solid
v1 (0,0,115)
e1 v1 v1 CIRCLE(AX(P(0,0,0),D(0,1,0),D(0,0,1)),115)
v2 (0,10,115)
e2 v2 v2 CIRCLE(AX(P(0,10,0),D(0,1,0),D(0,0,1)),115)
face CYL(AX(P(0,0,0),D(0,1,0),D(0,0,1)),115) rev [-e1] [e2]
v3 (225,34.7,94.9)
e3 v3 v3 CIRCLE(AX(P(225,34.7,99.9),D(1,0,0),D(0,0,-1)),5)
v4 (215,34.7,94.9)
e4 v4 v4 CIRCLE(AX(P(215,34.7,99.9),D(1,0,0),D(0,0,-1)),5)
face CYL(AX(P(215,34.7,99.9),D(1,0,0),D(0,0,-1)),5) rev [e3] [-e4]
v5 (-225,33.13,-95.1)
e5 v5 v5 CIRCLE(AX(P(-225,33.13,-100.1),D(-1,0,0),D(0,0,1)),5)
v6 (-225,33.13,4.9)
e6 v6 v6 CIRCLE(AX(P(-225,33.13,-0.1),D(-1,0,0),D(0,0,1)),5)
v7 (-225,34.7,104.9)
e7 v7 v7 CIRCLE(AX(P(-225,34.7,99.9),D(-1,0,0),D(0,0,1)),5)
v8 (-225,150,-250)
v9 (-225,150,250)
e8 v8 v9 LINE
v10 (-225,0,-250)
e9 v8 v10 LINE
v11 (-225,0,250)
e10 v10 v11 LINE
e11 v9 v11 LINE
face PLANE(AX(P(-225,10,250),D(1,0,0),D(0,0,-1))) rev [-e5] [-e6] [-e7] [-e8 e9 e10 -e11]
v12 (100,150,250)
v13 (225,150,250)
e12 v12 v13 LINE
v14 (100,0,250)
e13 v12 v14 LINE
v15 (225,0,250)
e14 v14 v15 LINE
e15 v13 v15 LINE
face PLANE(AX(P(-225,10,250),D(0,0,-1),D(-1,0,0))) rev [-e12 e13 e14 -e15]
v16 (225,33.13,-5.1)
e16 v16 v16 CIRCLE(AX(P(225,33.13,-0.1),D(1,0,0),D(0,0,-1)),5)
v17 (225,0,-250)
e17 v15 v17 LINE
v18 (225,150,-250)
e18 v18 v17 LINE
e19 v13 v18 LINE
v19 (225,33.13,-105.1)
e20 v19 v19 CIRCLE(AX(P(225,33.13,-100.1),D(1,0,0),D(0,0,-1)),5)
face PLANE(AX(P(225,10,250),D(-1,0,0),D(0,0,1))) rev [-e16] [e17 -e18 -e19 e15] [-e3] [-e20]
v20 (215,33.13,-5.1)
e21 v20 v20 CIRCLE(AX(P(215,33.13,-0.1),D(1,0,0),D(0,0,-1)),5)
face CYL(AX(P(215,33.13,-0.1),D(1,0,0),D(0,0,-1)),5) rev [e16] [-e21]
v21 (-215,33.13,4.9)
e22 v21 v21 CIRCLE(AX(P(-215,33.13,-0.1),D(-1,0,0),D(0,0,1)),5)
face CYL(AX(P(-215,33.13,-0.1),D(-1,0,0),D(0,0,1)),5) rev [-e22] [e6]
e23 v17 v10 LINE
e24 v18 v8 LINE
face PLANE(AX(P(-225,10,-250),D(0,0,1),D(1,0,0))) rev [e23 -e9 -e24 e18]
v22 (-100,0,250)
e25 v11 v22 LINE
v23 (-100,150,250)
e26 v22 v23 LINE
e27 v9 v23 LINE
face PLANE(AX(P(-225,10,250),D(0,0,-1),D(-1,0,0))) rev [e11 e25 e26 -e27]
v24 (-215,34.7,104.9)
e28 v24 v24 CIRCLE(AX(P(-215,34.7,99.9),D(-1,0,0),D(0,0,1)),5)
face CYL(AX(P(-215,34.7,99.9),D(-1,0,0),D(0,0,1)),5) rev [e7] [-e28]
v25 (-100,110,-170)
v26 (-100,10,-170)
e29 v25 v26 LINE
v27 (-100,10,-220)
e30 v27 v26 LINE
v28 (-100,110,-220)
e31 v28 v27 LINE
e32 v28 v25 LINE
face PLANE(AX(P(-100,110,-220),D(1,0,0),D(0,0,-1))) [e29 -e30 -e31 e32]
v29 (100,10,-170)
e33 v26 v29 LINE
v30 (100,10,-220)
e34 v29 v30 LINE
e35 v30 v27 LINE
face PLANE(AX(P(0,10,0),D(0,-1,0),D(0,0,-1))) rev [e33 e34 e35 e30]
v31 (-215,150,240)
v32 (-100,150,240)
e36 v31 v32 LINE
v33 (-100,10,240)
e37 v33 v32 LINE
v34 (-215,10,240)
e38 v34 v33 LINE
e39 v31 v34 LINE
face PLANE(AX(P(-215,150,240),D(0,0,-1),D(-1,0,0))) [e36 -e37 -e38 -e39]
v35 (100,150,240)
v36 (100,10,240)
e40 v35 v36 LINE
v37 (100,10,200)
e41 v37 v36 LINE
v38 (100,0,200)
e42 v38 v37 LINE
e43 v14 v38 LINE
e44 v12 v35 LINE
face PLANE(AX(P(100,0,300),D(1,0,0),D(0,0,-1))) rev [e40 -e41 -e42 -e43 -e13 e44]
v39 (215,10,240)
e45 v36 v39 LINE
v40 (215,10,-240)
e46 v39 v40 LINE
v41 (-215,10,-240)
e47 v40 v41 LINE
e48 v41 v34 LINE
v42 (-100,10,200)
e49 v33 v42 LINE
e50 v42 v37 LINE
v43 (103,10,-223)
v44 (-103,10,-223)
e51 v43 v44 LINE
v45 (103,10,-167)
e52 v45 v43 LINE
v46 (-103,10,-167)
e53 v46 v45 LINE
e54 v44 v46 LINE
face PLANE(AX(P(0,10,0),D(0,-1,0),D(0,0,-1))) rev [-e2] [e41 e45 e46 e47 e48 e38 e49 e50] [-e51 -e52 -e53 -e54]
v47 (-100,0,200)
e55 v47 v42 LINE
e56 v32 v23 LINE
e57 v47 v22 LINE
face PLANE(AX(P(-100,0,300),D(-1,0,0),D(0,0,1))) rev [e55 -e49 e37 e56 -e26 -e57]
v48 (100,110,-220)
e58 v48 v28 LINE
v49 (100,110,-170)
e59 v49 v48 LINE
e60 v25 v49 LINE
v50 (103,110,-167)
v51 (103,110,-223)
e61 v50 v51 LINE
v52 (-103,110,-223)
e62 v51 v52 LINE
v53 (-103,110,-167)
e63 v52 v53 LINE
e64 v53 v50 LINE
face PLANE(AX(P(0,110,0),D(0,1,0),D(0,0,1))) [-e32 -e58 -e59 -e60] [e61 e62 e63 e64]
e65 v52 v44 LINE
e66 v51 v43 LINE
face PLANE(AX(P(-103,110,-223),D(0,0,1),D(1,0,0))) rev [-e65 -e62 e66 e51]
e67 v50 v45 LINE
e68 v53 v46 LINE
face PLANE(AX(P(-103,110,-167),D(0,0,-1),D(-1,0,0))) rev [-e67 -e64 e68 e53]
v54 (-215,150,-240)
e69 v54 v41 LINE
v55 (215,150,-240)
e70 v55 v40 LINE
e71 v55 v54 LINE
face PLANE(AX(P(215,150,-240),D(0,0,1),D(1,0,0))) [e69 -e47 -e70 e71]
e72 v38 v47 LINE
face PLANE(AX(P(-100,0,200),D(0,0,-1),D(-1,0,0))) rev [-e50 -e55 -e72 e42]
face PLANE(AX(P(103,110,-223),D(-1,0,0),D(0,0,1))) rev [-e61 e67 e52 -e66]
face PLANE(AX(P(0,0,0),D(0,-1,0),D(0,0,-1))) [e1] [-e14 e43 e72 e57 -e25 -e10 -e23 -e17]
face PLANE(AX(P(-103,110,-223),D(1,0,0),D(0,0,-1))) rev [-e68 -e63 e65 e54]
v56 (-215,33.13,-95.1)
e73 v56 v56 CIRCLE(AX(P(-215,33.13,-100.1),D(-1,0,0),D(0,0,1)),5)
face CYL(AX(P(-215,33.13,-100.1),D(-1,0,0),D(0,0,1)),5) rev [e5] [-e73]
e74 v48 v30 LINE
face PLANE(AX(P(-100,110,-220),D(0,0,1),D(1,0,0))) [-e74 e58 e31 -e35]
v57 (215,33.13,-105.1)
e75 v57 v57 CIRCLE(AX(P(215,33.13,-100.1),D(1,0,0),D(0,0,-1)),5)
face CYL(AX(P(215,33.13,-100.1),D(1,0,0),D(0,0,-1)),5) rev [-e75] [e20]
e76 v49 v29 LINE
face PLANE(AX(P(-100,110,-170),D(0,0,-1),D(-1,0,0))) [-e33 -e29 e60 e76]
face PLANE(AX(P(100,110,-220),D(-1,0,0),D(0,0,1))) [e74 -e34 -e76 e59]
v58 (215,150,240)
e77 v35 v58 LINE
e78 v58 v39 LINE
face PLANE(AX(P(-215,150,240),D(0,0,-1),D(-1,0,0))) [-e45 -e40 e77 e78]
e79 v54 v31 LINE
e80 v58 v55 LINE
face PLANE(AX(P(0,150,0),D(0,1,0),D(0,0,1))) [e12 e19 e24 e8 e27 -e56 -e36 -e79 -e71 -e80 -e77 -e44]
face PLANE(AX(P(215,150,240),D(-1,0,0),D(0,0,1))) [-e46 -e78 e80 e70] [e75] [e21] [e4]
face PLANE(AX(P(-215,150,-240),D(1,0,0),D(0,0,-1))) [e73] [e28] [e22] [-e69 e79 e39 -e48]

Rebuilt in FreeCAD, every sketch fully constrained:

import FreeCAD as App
import Part
import Sketcher
Q = App.Units.Quantity

doc = App.newDocument("Part")
body = doc.addObject("PartDesign::Body", "Body")

# Sketch on XZ plane
sketch1 = doc.addObject("Sketcher::SketchObject", "Sketch")
body.addObject(sketch1)
sketch1.AttachmentSupport = (doc.XZ_Plane, [""])
sketch1.MapMode = "FlatFace"
sketch1.addGeometry([
    Part.LineSegment(App.Vector(-225, -250, 0), App.Vector(-225, 250, 0)),
    Part.LineSegment(App.Vector(-225, 250, 0), App.Vector(225, 250, 0)),
    Part.LineSegment(App.Vector(225, 250, 0), App.Vector(225, -250, 0)),
    Part.LineSegment(App.Vector(225, -250, 0), App.Vector(-225, -250, 0)),
], False)
sketch1.addConstraint([
    Sketcher.Constraint("Coincident", 0, 2, 1, 1),
    Sketcher.Constraint("Coincident", 1, 2, 2, 1),
    Sketcher.Constraint("Coincident", 2, 2, 3, 1),
    Sketcher.Constraint("Coincident", 3, 2, 0, 1),
    Sketcher.Constraint("Vertical", 0),
    Sketcher.Constraint("Horizontal", 1),
    Sketcher.Constraint("Vertical", 2),
    Sketcher.Constraint("Horizontal", 3),
    Sketcher.Constraint("Symmetric", 0, 2, 2, 2, -1, 1),
    Sketcher.Constraint("DistanceX", 1, 1, 1, 2, Q("450 mm")),
    Sketcher.Constraint("DistanceY", 0, 1, 0, 2, Q("500 mm")),
])
pad1 = doc.addObject("PartDesign::Pad", "Pad")
body.addObject(pad1)
pad1.Profile = sketch1
pad1.Length = 10
pad1.Reversed = True

# Sketch on XZ plane
sketch2 = doc.addObject("Sketcher::SketchObject", "Sketch001")
body.addObject(sketch2)
sketch2.AttachmentSupport = (doc.XZ_Plane, [""])
sketch2.MapMode = "FlatFace"
sketch2.AttachmentOffset = App.Placement(App.Vector(0, 0, -10), App.Rotation())
sketch2.addGeometry([
    Part.LineSegment(App.Vector(-225, -250, 0), App.Vector(-225, 250, 0)),  # 0
    Part.LineSegment(App.Vector(-225, 250, 0), App.Vector(225, 250, 0)),  # 1
    Part.LineSegment(App.Vector(225, 250, 0), App.Vector(225, -250, 0)),  # 2
    Part.LineSegment(App.Vector(225, -250, 0), App.Vector(-225, -250, 0)),  # 3
    Part.LineSegment(App.Vector(215, 240, 0), App.Vector(-215, 240, 0)),  # 4
    Part.LineSegment(App.Vector(-215, 240, 0), App.Vector(-215, -240, 0)),  # 5
    Part.LineSegment(App.Vector(-215, -240, 0), App.Vector(215, -240, 0)),  # 6
    Part.LineSegment(App.Vector(215, -240, 0), App.Vector(215, 240, 0)),  # 7
], False)
sketch2.addConstraint([
    Sketcher.Constraint("Coincident", 0, 2, 1, 1),
    Sketcher.Constraint("Coincident", 1, 2, 2, 1),
    Sketcher.Constraint("Coincident", 2, 2, 3, 1),
    Sketcher.Constraint("Coincident", 3, 2, 0, 1),
    Sketcher.Constraint("Coincident", 4, 2, 5, 1),
    Sketcher.Constraint("Coincident", 5, 2, 6, 1),
    Sketcher.Constraint("Coincident", 6, 2, 7, 1),
    Sketcher.Constraint("Coincident", 7, 2, 4, 1),
    Sketcher.Constraint("Vertical", 0),
    Sketcher.Constraint("Horizontal", 1),
    Sketcher.Constraint("Vertical", 2),
    Sketcher.Constraint("Horizontal", 3),
    Sketcher.Constraint("Horizontal", 4),
    Sketcher.Constraint("Vertical", 5),
    Sketcher.Constraint("Horizontal", 6),
    Sketcher.Constraint("Vertical", 7),
    Sketcher.Constraint("Symmetric", 0, 2, 2, 2, -1, 1),
    Sketcher.Constraint("Symmetric", 4, 2, 6, 2, -1, 1),
    Sketcher.Constraint("DistanceX", 1, 1, 1, 2, Q("450 mm")),
    Sketcher.Constraint("DistanceX", 4, 2, 4, 1, Q("430 mm")),
    Sketcher.Constraint("DistanceY", 0, 1, 0, 2, Q("500 mm")),
    Sketcher.Constraint("DistanceY", 5, 2, 5, 1, Q("480 mm")),
])
pad2 = doc.addObject("PartDesign::Pad", "Pad001")
body.addObject(pad2)
pad2.Profile = sketch2
pad2.Length = 140
pad2.Reversed = True

# Sketch on XZ plane
sketch3 = doc.addObject("Sketcher::SketchObject", "Sketch002")
body.addObject(sketch3)
sketch3.AttachmentSupport = (doc.XZ_Plane, [""])
sketch3.MapMode = "FlatFace"
sketch3.AttachmentOffset = App.Placement(App.Vector(0, 0, -10), App.Rotation())
sketch3.addGeometry(Part.Circle(App.Vector(0, 0, 0), App.Vector(0, 0, 1), 115), False)
sketch3.addConstraint([
    Sketcher.Constraint("Coincident", 0, 3, -1, 1),
    Sketcher.Constraint("Diameter", 0, Q("230 mm")),
])
pocket1 = doc.addObject("PartDesign::Pocket", "Pocket")
body.addObject(pocket1)
pocket1.Profile = sketch3
pocket1.Length = 10
pocket1.Reversed = True

# Sketch on XZ plane
sketch4 = doc.addObject("Sketcher::SketchObject", "Sketch003")
body.addObject(sketch4)
sketch4.AttachmentSupport = (doc.XZ_Plane, [""])
sketch4.MapMode = "FlatFace"
sketch4.AttachmentOffset = App.Placement(App.Vector(0, 0, -150), App.Rotation())
sketch4.addGeometry([
    Part.LineSegment(App.Vector(-100, 200, 0), App.Vector(-100, 300, 0)),
    Part.LineSegment(App.Vector(-100, 300, 0), App.Vector(100, 300, 0)),
    Part.LineSegment(App.Vector(100, 300, 0), App.Vector(100, 200, 0)),
    Part.LineSegment(App.Vector(100, 200, 0), App.Vector(-100, 200, 0)),
], False)
sketch4.addConstraint([
    Sketcher.Constraint("Coincident", 0, 2, 1, 1),
    Sketcher.Constraint("Coincident", 1, 2, 2, 1),
    Sketcher.Constraint("Coincident", 2, 2, 3, 1),
    Sketcher.Constraint("Coincident", 3, 2, 0, 1),
    Sketcher.Constraint("Vertical", 0),
    Sketcher.Constraint("Horizontal", 1),
    Sketcher.Constraint("Vertical", 2),
    Sketcher.Constraint("Horizontal", 3),
    Sketcher.Constraint("DistanceX", 1, 1, 1, 2, Q("200 mm")),
    Sketcher.Constraint("DistanceY", 0, 1, 0, 2, Q("100 mm")),
    Sketcher.Constraint("DistanceX", 0, 2, -1, 1, Q("100 mm")),
    Sketcher.Constraint("DistanceY", -1, 1, 0, 2, Q("300 mm")),
])
pocket2 = doc.addObject("PartDesign::Pocket", "Pocket001")
body.addObject(pocket2)
pocket2.Profile = sketch4
pocket2.Type = "ThroughAll"
pocket2.Reversed = True

# Sketch on YZ plane
sketch5 = doc.addObject("Sketcher::SketchObject", "Sketch004")
body.addObject(sketch5)
sketch5.AttachmentSupport = (doc.YZ_Plane, [""])
sketch5.MapMode = "FlatFace"
sketch5.AttachmentOffset = App.Placement(App.Vector(0, 0, 225), App.Rotation())
sketch5.addGeometry([
    Part.Circle(App.Vector(34.7, 99.9, 0), App.Vector(0, 0, 1), 5),
    Part.Circle(App.Vector(33.13, -0.1, 0), App.Vector(0, 0, 1), 5),
    Part.Circle(App.Vector(33.13, -100.1, 0), App.Vector(0, 0, 1), 5),
], False)
sketch5.addConstraint([
    Sketcher.Constraint("Equal", 0, 1),
    Sketcher.Constraint("Equal", 1, 2),
    Sketcher.Constraint("Vertical", 1, 3, 2, 3),
    Sketcher.Constraint("Diameter", 0, Q("10 mm")),
    Sketcher.Constraint("DistanceY", 1, 3, 0, 3, Q("100 mm")),
    Sketcher.Constraint("DistanceY", 2, 3, 1, 3, Q("100 mm")),
    Sketcher.Constraint("DistanceX", -1, 1, 0, 3, Q("34.7 mm")),
    Sketcher.Constraint("DistanceY", -1, 1, 0, 3, Q("99.9 mm")),
    Sketcher.Constraint("DistanceX", -1, 1, 1, 3, Q("33.13 mm")),
])
pocket3 = doc.addObject("PartDesign::Pocket", "Pocket002")
body.addObject(pocket3)
pocket3.Profile = sketch5
pocket3.Length = 10

# Sketch on YZ plane
sketch6 = doc.addObject("Sketcher::SketchObject", "Sketch005")
body.addObject(sketch6)
sketch6.AttachmentSupport = (doc.YZ_Plane, [""])
sketch6.MapMode = "FlatFace"
sketch6.AttachmentOffset = App.Placement(App.Vector(0, 0, -215), App.Rotation())
sketch6.addGeometry([
    Part.Circle(App.Vector(33.13, -100.1, 0), App.Vector(0, 0, 1), 5),
    Part.Circle(App.Vector(33.13, -0.1, 0), App.Vector(0, 0, 1), 5),
    Part.Circle(App.Vector(34.7, 99.9, 0), App.Vector(0, 0, 1), 5),
], False)
sketch6.addConstraint([
    Sketcher.Constraint("Equal", 0, 1),
    Sketcher.Constraint("Equal", 1, 2),
    Sketcher.Constraint("Vertical", 0, 3, 1, 3),
    Sketcher.Constraint("Diameter", 0, Q("10 mm")),
    Sketcher.Constraint("DistanceY", 0, 3, 1, 3, Q("100 mm")),
    Sketcher.Constraint("DistanceY", 1, 3, 2, 3, Q("100 mm")),
    Sketcher.Constraint("DistanceY", 0, 3, -1, 1, Q("100.1 mm")),
    Sketcher.Constraint("DistanceX", -1, 1, 2, 3, Q("34.7 mm")),
    Sketcher.Constraint("DistanceX", -1, 1, 0, 3, Q("33.13 mm")),
])
pocket4 = doc.addObject("PartDesign::Pocket", "Pocket003")
body.addObject(pocket4)
pocket4.Profile = sketch6
pocket4.Length = 10

# Sketch on XZ plane
sketch7 = doc.addObject("Sketcher::SketchObject", "Sketch006")
body.addObject(sketch7)
sketch7.AttachmentSupport = (doc.XZ_Plane, [""])
sketch7.MapMode = "FlatFace"
sketch7.AttachmentOffset = App.Placement(App.Vector(0, 0, -10), App.Rotation())
sketch7.addGeometry([
    Part.LineSegment(App.Vector(-103, -223, 0), App.Vector(-103, -167, 0)),  # 0
    Part.LineSegment(App.Vector(-103, -167, 0), App.Vector(103, -167, 0)),  # 1
    Part.LineSegment(App.Vector(103, -167, 0), App.Vector(103, -223, 0)),  # 2
    Part.LineSegment(App.Vector(103, -223, 0), App.Vector(-103, -223, 0)),  # 3
    Part.LineSegment(App.Vector(100, -170, 0), App.Vector(-100, -170, 0)),  # 4
    Part.LineSegment(App.Vector(-100, -170, 0), App.Vector(-100, -220, 0)),  # 5
    Part.LineSegment(App.Vector(-100, -220, 0), App.Vector(100, -220, 0)),  # 6
    Part.LineSegment(App.Vector(100, -220, 0), App.Vector(100, -170, 0)),  # 7
], False)
sketch7.addConstraint([
    Sketcher.Constraint("Coincident", 0, 2, 1, 1),
    Sketcher.Constraint("Coincident", 1, 2, 2, 1),
    Sketcher.Constraint("Coincident", 2, 2, 3, 1),
    Sketcher.Constraint("Coincident", 3, 2, 0, 1),
    Sketcher.Constraint("Coincident", 4, 2, 5, 1),
    Sketcher.Constraint("Coincident", 5, 2, 6, 1),
    Sketcher.Constraint("Coincident", 6, 2, 7, 1),
    Sketcher.Constraint("Coincident", 7, 2, 4, 1),
    Sketcher.Constraint("Vertical", 0),
    Sketcher.Constraint("Horizontal", 1),
    Sketcher.Constraint("Vertical", 2),
    Sketcher.Constraint("Horizontal", 3),
    Sketcher.Constraint("Horizontal", 4),
    Sketcher.Constraint("Vertical", 5),
    Sketcher.Constraint("Horizontal", 6),
    Sketcher.Constraint("Vertical", 7),
    Sketcher.Constraint("DistanceX", 1, 1, 1, 2, Q("206 mm")),
    Sketcher.Constraint("DistanceX", 4, 2, 4, 1, Q("200 mm")),
    Sketcher.Constraint("DistanceY", 0, 1, 0, 2, Q("56 mm")),
    Sketcher.Constraint("DistanceY", 5, 2, 5, 1, Q("50 mm")),
    Sketcher.Constraint("DistanceX", 0, 2, -1, 1, Q("103 mm")),
    Sketcher.Constraint("DistanceY", 0, 2, -1, 1, Q("167 mm")),
    Sketcher.Constraint("DistanceX", 4, 2, -1, 1, Q("100 mm")),
    Sketcher.Constraint("DistanceY", 4, 2, -1, 1, Q("170 mm")),
])
pad3 = doc.addObject("PartDesign::Pad", "Pad002")
body.addObject(pad3)
pad3.Profile = sketch7
pad3.Length = 100
pad3.Reversed = True

doc.recompute()
